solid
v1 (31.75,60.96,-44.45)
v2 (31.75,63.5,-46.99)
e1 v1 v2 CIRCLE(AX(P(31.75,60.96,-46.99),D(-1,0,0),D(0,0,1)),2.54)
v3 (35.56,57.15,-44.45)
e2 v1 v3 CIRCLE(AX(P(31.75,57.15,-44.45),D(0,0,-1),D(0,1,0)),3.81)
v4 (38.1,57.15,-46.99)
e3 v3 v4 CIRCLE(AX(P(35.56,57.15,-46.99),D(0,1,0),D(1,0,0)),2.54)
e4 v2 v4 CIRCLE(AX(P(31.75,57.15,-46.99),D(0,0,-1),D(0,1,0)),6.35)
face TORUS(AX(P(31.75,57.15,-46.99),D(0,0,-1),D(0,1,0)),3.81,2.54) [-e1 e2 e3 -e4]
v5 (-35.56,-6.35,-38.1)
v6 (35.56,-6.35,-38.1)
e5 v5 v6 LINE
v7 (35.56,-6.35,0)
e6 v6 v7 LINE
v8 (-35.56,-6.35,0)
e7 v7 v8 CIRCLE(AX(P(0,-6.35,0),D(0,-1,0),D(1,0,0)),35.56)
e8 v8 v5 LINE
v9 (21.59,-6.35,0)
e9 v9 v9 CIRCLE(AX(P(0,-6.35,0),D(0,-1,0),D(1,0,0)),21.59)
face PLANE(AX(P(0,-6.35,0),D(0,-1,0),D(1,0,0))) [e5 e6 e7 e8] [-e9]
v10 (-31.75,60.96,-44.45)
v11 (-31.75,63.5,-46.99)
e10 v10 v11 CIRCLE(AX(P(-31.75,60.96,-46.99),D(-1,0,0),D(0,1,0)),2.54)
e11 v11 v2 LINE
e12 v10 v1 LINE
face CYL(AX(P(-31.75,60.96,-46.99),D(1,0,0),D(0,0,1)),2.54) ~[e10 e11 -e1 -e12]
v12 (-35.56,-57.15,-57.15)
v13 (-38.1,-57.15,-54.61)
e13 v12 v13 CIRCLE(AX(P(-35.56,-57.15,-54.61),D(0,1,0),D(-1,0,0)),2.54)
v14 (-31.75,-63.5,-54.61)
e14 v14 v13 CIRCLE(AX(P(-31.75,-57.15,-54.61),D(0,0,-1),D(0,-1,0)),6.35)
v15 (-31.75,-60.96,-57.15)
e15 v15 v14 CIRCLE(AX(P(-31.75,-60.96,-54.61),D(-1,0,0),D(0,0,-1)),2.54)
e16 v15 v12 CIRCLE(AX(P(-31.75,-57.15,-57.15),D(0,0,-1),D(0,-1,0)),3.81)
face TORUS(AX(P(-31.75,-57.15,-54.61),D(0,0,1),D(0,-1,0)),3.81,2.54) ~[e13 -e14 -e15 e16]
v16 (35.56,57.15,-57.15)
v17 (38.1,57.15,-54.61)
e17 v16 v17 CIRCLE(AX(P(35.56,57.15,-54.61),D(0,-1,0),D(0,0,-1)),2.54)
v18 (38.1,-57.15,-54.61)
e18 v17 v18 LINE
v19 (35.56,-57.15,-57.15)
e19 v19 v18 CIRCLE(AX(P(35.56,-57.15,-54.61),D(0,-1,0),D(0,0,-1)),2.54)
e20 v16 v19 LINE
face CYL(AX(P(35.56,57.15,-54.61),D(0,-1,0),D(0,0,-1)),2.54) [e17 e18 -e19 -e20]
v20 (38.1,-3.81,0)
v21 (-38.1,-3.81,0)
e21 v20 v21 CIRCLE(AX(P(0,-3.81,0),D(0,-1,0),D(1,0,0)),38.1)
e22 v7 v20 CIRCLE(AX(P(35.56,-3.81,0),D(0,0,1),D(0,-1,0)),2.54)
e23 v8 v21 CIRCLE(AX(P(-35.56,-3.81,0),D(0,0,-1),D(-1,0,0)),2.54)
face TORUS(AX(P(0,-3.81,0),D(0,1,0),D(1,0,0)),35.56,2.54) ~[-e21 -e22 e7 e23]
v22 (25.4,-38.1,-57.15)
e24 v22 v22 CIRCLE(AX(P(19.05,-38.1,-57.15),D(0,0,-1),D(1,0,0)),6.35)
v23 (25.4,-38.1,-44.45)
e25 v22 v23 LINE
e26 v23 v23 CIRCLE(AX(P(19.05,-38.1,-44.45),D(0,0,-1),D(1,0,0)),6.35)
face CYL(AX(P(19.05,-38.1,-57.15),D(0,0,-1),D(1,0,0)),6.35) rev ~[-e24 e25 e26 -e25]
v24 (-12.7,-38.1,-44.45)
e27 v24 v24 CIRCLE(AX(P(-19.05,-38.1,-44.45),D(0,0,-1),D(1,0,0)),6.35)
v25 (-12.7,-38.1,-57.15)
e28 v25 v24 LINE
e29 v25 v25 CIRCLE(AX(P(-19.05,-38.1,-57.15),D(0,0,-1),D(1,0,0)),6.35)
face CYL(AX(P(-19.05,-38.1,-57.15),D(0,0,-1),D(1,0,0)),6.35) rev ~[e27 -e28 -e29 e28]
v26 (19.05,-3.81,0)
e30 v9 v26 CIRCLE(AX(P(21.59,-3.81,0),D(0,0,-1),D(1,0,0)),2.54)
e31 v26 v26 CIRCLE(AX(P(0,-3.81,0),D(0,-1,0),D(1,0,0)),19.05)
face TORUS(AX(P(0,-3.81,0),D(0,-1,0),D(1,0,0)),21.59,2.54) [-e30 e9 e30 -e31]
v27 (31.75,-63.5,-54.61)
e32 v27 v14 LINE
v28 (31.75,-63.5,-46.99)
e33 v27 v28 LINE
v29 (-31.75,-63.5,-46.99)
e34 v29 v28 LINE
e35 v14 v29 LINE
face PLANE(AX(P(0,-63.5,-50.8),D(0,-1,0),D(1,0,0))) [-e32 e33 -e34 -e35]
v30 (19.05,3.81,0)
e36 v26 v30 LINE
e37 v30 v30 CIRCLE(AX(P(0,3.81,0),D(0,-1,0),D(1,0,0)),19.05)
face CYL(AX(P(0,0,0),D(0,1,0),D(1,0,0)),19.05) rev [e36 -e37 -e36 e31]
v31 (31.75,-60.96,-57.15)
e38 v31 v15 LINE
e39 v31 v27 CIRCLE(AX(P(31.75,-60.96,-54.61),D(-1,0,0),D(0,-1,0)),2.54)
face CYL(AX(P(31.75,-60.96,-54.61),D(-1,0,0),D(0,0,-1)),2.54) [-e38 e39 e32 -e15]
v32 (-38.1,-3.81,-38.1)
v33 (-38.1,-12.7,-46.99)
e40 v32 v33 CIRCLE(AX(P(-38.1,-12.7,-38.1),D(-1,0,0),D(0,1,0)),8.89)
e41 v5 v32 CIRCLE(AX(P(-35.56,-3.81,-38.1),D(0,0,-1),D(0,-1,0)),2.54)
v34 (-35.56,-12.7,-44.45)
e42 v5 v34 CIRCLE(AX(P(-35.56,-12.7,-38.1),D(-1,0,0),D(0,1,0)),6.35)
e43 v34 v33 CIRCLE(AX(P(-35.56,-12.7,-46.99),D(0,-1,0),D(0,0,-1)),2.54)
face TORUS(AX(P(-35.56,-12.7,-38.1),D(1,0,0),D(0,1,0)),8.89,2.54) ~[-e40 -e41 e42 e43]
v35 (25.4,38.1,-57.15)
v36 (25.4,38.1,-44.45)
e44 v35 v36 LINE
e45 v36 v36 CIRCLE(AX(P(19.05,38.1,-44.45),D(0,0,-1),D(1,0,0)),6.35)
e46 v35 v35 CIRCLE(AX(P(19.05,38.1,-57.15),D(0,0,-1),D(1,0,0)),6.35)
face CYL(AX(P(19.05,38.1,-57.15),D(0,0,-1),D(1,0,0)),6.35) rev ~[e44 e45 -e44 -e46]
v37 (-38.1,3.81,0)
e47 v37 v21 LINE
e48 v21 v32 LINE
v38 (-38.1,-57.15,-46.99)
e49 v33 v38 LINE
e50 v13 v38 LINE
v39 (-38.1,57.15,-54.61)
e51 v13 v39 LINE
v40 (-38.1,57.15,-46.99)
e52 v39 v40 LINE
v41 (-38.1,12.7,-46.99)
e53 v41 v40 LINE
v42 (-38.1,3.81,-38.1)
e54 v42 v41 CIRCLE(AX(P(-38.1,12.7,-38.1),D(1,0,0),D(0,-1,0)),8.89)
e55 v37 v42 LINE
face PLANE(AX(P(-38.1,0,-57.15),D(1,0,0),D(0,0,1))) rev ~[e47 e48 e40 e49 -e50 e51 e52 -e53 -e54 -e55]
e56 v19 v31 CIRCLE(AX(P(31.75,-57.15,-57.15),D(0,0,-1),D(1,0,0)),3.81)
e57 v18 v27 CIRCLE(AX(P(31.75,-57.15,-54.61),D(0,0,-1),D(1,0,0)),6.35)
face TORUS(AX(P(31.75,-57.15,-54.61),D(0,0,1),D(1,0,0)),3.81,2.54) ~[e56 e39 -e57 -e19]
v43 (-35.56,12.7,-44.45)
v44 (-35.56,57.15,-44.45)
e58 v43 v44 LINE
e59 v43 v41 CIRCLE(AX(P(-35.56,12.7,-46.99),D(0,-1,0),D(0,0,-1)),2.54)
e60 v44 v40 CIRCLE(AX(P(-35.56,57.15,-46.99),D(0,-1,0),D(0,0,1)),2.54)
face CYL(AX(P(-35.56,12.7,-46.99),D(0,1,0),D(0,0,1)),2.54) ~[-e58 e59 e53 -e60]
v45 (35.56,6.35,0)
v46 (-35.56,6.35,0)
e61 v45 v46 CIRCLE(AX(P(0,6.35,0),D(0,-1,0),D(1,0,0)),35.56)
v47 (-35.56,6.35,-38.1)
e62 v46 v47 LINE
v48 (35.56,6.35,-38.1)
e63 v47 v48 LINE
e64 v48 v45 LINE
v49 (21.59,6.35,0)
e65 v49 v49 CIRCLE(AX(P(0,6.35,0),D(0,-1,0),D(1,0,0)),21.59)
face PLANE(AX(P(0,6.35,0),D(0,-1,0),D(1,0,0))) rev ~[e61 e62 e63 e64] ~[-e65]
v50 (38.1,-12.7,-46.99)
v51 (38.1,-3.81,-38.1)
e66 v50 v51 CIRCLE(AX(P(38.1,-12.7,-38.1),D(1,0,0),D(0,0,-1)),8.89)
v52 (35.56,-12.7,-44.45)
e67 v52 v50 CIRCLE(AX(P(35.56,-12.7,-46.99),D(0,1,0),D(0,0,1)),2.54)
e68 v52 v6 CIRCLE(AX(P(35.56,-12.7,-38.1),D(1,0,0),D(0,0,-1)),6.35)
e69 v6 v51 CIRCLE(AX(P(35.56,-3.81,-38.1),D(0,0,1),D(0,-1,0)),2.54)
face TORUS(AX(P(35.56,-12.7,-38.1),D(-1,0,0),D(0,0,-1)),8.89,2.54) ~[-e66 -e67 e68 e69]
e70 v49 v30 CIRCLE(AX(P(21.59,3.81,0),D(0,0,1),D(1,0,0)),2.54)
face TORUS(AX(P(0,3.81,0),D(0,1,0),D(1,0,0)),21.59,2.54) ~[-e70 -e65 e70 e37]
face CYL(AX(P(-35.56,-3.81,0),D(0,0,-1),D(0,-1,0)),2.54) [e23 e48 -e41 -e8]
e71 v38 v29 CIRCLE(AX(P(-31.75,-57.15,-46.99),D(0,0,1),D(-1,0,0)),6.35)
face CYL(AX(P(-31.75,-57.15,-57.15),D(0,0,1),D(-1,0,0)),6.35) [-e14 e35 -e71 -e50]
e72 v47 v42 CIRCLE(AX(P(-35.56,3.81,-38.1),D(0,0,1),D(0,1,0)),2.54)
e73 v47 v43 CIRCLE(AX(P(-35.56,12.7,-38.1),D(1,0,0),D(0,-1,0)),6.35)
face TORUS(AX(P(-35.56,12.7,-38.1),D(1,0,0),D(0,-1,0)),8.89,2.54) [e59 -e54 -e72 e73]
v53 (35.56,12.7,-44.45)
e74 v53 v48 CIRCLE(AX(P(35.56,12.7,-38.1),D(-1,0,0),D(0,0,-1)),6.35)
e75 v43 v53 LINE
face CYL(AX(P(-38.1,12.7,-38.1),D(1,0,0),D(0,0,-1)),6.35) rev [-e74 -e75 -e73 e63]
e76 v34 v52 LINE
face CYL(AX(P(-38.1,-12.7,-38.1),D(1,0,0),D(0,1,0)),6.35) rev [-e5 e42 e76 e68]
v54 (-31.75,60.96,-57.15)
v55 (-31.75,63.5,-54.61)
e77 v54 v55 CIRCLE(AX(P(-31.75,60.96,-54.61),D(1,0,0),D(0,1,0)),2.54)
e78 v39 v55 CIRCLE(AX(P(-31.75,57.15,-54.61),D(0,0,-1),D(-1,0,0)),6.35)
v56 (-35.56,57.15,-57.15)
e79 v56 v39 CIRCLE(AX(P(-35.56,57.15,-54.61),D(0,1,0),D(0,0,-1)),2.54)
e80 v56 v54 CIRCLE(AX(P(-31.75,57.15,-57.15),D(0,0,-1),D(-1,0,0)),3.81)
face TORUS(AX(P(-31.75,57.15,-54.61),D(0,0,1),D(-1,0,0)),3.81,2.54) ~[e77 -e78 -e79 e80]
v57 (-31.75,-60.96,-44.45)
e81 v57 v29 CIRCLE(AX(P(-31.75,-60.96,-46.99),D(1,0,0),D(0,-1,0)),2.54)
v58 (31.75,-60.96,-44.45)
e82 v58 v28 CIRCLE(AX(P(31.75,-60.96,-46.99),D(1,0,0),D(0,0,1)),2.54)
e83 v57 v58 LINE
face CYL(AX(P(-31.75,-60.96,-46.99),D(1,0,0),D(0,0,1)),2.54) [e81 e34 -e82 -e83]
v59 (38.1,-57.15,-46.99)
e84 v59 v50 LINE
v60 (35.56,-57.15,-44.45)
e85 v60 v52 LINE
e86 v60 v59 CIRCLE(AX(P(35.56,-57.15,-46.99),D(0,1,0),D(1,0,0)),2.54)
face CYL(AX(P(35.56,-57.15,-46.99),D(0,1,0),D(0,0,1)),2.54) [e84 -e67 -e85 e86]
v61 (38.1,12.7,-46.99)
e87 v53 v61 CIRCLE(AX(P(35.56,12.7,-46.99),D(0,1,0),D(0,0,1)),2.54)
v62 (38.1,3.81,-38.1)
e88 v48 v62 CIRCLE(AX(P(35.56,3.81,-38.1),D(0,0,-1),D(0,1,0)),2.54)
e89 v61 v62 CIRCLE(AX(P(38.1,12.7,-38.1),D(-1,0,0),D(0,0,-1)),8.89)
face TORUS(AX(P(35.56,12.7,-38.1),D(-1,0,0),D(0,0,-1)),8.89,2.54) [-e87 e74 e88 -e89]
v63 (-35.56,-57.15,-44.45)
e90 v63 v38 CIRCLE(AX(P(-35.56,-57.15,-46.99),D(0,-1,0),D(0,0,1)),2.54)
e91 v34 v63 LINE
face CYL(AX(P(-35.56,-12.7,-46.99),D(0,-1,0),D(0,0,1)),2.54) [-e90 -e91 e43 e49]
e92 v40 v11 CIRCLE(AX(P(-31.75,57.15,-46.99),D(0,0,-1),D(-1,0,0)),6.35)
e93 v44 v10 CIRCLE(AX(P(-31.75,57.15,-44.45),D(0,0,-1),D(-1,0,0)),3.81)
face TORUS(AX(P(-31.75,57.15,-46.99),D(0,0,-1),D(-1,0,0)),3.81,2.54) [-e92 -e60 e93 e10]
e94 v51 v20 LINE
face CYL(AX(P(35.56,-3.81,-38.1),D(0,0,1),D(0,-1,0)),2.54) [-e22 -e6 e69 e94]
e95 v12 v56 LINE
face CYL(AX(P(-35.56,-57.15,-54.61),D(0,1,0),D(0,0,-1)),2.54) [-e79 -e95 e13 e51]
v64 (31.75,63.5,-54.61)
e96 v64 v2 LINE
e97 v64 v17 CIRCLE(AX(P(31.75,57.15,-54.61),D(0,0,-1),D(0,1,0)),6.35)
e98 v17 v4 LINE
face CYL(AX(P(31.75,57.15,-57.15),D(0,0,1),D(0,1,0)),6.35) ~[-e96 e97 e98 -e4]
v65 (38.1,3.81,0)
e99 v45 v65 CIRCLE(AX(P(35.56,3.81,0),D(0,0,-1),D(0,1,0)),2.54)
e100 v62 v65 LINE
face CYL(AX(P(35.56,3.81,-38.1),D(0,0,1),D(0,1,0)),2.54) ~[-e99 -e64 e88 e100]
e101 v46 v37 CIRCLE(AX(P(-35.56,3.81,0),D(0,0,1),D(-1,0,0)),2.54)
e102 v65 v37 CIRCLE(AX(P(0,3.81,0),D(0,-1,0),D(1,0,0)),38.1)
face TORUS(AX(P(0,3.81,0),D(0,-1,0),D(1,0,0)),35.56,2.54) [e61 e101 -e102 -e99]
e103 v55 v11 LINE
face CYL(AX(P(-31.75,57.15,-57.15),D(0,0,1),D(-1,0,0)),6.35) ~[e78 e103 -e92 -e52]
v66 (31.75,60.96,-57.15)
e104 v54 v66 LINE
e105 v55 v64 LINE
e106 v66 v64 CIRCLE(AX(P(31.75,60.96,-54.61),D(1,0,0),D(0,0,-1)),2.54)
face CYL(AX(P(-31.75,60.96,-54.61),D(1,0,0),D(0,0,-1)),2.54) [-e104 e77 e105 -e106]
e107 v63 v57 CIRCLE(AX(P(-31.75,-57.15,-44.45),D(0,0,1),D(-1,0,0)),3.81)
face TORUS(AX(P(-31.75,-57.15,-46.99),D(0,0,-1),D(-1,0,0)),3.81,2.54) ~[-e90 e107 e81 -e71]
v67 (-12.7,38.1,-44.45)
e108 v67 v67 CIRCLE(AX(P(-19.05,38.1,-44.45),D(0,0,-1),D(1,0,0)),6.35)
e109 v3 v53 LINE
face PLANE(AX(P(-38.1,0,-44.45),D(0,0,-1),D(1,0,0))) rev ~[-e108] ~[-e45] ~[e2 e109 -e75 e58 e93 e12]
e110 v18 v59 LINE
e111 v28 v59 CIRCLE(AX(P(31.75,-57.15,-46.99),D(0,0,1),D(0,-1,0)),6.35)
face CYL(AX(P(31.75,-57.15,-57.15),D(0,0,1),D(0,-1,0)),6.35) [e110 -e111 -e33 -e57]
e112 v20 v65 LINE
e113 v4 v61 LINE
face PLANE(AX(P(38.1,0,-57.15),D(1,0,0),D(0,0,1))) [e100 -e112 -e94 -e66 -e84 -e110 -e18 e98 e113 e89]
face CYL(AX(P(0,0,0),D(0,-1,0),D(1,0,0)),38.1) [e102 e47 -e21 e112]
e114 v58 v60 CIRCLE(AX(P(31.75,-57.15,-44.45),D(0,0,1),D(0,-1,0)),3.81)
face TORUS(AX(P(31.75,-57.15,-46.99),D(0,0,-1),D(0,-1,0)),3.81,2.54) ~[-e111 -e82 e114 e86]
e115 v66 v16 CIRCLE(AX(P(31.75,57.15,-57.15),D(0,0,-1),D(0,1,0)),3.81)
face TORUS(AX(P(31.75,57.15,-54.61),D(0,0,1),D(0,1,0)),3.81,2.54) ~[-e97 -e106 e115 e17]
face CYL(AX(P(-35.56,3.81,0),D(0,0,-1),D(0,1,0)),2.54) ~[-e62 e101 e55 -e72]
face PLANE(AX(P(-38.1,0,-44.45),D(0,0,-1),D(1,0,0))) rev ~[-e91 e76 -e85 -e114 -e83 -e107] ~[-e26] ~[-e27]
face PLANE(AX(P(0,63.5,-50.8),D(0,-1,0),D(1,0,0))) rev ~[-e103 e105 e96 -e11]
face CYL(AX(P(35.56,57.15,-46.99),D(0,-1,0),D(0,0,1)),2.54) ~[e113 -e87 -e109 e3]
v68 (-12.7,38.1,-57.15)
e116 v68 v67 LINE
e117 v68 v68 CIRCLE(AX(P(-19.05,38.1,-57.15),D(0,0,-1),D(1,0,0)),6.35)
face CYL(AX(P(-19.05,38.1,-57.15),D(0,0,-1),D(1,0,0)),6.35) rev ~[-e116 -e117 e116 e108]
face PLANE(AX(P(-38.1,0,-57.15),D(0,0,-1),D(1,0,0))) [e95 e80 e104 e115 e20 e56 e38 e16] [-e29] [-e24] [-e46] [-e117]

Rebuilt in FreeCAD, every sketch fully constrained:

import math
import FreeCAD as App
import Part
import Sketcher

V = App.Vector
Q = App.Units.Quantity


def edges_at(feature, points):
    """Names of the edges that pass closest to the given points."""
    edges = feature.Shape.Edges
    near = lambda p: min(range(len(edges)), key=lambda i: edges[i].distToShape(Part.Vertex(*p))[0])
    return sorted({f"Edge{near(p) + 1}" for p in points})


def add_polygon(sketch, points):
    """Adds a closed chain of lines whose ends are joined by coincident constraints."""
    first, n = sketch.GeometryCount, len(points)
    for a, b in zip(points, points[1:] + points[:1]):
        sketch.addGeometry(Part.LineSegment(App.Vector(*a, 0), App.Vector(*b, 0)), False)
    for i in range(n):
        sketch.addConstraint(Sketcher.Constraint("Coincident", first + i, 2, first + (i + 1) % n, 1))

doc = App.newDocument("Part")
body = doc.addObject("PartDesign::Body", "Body")

# Sketch on XZ plane
sketch1 = body.newObject("Sketcher::SketchObject", "Sketch")
sketch1.AttachmentSupport = (doc.getObject("XZ_Plane"), [""])
sketch1.MapMode = "FlatFace"
add_polygon(sketch1, [(-38, -44), (-38, -57), (38, -57), (38, -44)])  # lines 0-3
sketch1.addConstraint([
    Sketcher.Constraint("Vertical", 0),
    Sketcher.Constraint("Horizontal", 1),
    Sketcher.Constraint("Vertical", 2),
    Sketcher.Constraint("Horizontal", 3),
    Sketcher.Constraint("DistanceX", 1, 1, 1, 2, Q("3 in")),
    Sketcher.Constraint("DistanceY", 0, 2, 0, 1, Q("0.5 in")),
    Sketcher.Constraint("DistanceX", 0, 2, -1, 1, Q("1.5 in")),
    Sketcher.Constraint("DistanceY", 0, 2, -1, 1, Q("2.25 in")),
])
pad1 = body.newObject("PartDesign::Pad", "Pad")
pad1.Profile = sketch1
pad1.Length = Q("5 in")
pad1.Midplane = True

# Sketch on XZ plane
sketch2 = body.newObject("Sketcher::SketchObject", "Sketch001")
sketch2.AttachmentSupport = (doc.getObject("XZ_Plane"), [""])
sketch2.MapMode = "FlatFace"
sketch2.addGeometry([
    Part.ArcOfCircle(Part.Circle(V(0, 0, 0), V(0, 0, 1), 38), math.radians(0), math.radians(180)),  # 0
    Part.LineSegment(V(-38, 0, 0), V(-38, -44, 0)),  # 1
    Part.LineSegment(V(-38, -44, 0), V(38, -44, 0)),  # 2
    Part.LineSegment(V(38, -44, 0), V(38, 0, 0)),  # 3
    Part.Circle(V(0, 0, 0), V(0, 0, 1), 19),  # 4
], False)
sketch2.addConstraint([
    Sketcher.Constraint("Tangent", 0, 2, 1, 1),
    Sketcher.Constraint("Coincident", 1, 2, 2, 1),
    Sketcher.Constraint("Coincident", 2, 2, 3, 1),
    Sketcher.Constraint("Tangent", 3, 2, 0, 1),
    Sketcher.Constraint("Vertical", 1),
    Sketcher.Constraint("Horizontal", 2),
    Sketcher.Constraint("Vertical", 3),
    Sketcher.Constraint("Coincident", 0, 3, -1, 1),
    Sketcher.Constraint("Coincident", 4, 3, -1, 1),
    Sketcher.Constraint("Diameter", 4, Q("1.5 in")),
    Sketcher.Constraint("Radius", 0, Q("1.5 in")),
    Sketcher.Constraint("DistanceY", 1, 2, 1, 1, Q("1.75 in")),
])
pad2 = body.newObject("PartDesign::Pad", "Pad001")
pad2.Profile = sketch2
pad2.Length = Q("0.5 in")
pad2.Midplane = True

# Sketch on XY plane
sketch3 = body.newObject("Sketcher::SketchObject", "Sketch002")
sketch3.AttachmentSupport = (doc.getObject("XY_Plane"), [""])
sketch3.MapMode = "FlatFace"
sketch3.AttachmentOffset = App.Placement(V(0, 0, -2.25 * 25.4), App.Rotation())
sketch3.addGeometry([
    Part.Circle(V(19, -38, 0), V(0, 0, 1), 6),
    Part.Circle(V(-19, -38, 0), V(0, 0, 1), 6),
    Part.Circle(V(-19, 38, 0), V(0, 0, 1), 6),
    Part.Circle(V(19, 38, 0), V(0, 0, 1), 6),
], False)
sketch3.addConstraint([
    Sketcher.Constraint("Equal", 0, 1),
    Sketcher.Constraint("Equal", 1, 2),
    Sketcher.Constraint("Equal", 2, 3),
    Sketcher.Constraint("Symmetric", 0, 3, 2, 3, -1, 1),
    Sketcher.Constraint("Symmetric", 1, 3, 3, 3, -1, 1),
    Sketcher.Constraint("Symmetric", 0, 3, 1, 3, -2),
    Sketcher.Constraint("Diameter", 0, Q("0.5 in")),
    Sketcher.Constraint("DistanceY", 1, 3, 2, 3, Q("3 in")),
    Sketcher.Constraint("DistanceX", 1, 3, 0, 3, Q("1.5 in")),
])
pocket1 = body.newObject("PartDesign::Pocket", "Pocket")
pocket1.Profile = sketch3
pocket1.Type = "ThroughAll"
pocket1.Reversed = True
doc.recompute()

fillet = body.newObject("PartDesign::Fillet", "Fillet")
fillet.Base = (pocket1, edges_at(pocket1, [
    (0, -6.35, -44.45),
    (-38.1, -63.5, -50.8),
    (38.1, -63.5, -50.8),
    (38.1, 63.5, -50.8),
    (0, 6.35, -44.45),
    (-38.1, 63.5, -50.8),
]))
fillet.Radius = Q("0.25 in")
doc.recompute()

fillet2 = body.newObject("PartDesign::Fillet", "Fillet001")
fillet2.Base = (fillet, edges_at(fillet, [
    (38.1, -6.35, -19.05),
    (38.1, 6.35, -19.05),
    (38.1, 0, -57.15),
    (-19.05, -6.35, 0),
    (-19.05, 6.35, 0),
]))
fillet2.Radius = Q("0.1 in")

doc.recompute()
